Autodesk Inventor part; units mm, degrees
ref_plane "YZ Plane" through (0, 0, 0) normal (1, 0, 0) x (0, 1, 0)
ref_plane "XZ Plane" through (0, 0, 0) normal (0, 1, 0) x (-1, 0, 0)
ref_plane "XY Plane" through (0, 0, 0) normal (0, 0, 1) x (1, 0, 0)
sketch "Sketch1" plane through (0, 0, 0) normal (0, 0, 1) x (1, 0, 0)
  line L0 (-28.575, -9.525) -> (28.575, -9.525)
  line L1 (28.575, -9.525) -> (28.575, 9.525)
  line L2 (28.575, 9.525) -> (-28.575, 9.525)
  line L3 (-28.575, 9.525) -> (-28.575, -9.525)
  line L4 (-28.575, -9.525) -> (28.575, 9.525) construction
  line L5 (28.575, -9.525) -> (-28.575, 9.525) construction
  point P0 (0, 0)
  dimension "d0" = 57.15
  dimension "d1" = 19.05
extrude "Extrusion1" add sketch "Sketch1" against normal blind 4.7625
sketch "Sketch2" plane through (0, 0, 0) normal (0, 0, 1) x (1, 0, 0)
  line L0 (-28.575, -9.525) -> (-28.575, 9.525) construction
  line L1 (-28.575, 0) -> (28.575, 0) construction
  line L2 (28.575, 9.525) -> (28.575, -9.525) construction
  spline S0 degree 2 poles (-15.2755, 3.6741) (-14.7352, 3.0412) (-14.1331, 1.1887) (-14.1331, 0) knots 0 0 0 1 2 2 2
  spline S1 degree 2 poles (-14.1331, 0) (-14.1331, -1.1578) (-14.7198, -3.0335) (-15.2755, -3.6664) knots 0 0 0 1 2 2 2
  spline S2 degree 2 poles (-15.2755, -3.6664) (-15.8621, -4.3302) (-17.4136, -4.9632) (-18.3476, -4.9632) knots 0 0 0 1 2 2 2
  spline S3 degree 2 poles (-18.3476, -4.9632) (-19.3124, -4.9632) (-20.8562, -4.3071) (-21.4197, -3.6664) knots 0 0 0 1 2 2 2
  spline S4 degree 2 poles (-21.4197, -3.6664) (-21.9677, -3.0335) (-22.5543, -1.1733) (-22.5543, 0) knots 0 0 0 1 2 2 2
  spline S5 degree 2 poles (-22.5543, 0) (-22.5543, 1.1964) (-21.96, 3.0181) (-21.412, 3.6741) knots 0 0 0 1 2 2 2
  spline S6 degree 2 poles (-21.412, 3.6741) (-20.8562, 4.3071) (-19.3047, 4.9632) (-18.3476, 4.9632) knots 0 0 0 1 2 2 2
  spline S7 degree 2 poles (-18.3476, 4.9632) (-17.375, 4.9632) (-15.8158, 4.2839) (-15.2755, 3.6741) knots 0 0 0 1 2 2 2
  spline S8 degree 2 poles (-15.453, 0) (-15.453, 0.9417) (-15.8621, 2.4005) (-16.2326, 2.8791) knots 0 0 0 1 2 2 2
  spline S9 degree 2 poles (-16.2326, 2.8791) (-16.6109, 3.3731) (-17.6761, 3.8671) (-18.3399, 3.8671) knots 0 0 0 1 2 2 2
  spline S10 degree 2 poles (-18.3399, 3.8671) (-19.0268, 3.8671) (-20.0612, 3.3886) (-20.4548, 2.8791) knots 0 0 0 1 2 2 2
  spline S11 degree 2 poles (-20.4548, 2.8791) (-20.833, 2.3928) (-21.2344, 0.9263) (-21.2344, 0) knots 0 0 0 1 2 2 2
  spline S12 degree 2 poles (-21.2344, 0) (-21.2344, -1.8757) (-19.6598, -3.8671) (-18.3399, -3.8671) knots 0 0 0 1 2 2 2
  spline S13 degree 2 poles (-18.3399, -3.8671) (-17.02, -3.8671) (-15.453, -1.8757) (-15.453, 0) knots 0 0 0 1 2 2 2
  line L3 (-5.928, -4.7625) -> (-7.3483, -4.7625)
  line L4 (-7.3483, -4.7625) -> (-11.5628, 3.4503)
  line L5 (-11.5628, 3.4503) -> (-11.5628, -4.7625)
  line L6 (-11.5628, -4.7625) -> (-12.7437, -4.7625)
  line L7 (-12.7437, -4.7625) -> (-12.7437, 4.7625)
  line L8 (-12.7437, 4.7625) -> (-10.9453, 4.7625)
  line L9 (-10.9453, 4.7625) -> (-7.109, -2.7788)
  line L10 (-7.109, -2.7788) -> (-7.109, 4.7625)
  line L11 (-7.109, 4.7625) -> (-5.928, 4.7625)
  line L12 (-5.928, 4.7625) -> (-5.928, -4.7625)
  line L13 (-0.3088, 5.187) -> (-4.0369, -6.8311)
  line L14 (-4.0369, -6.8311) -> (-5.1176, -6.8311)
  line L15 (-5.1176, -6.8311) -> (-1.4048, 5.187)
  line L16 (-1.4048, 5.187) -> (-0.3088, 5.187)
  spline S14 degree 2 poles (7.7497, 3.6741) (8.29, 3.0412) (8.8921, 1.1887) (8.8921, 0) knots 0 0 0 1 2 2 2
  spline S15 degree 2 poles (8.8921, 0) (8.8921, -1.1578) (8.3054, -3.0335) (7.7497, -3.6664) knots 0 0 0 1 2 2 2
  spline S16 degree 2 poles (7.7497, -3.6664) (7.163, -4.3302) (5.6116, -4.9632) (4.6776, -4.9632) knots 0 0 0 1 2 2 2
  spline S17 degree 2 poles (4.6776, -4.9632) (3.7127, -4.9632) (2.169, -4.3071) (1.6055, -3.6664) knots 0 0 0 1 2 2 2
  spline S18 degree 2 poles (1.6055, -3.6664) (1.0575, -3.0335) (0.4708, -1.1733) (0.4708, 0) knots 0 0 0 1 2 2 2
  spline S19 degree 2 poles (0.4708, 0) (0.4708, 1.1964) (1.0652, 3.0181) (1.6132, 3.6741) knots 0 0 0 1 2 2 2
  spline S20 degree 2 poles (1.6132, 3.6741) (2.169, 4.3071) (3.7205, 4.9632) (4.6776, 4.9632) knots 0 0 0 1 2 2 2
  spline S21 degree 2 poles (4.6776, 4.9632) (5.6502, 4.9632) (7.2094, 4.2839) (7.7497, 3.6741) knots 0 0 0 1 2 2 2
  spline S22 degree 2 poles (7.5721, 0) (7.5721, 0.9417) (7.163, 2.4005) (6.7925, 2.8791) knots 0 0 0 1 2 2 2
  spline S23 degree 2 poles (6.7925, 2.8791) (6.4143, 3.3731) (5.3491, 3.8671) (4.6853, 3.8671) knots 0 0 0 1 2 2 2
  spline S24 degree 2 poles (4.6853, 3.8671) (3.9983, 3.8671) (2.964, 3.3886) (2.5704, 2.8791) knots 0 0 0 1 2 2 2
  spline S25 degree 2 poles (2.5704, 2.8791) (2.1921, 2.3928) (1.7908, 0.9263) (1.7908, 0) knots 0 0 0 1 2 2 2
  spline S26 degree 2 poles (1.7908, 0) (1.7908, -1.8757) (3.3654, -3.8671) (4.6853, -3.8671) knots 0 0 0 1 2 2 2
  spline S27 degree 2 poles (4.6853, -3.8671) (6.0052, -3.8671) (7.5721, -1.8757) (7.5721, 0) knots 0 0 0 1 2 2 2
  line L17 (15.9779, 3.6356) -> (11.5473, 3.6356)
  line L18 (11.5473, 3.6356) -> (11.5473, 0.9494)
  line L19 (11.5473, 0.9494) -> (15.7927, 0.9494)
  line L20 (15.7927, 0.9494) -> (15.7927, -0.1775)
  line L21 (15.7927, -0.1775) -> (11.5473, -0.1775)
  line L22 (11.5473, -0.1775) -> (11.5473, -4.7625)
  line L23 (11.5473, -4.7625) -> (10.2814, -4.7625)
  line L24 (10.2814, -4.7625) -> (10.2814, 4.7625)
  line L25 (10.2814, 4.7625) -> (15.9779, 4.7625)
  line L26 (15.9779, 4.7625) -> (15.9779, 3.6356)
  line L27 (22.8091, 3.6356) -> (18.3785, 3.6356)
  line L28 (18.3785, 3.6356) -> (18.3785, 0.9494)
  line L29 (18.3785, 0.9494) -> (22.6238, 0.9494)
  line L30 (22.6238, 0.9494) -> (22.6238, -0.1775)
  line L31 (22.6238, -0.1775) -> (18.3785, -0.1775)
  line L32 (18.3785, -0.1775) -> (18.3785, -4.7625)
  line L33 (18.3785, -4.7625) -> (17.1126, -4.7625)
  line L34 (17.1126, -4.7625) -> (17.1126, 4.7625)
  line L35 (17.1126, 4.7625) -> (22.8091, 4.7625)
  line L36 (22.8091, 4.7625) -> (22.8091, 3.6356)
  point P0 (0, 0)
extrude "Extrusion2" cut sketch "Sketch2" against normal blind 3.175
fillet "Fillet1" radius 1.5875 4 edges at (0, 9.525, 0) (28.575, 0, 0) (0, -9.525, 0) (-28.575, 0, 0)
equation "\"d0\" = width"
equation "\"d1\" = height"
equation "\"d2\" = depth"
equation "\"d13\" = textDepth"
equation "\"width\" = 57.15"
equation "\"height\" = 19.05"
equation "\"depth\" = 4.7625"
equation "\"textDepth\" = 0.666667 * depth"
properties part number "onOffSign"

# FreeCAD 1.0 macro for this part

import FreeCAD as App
import Part
import Sketcher
Q = App.Units.Quantity


def edges_at(feature, points):
    """Names of the edges that pass closest to the given points."""
    edges = feature.Shape.Edges
    near = lambda p: min(range(len(edges)), key=lambda i: edges[i].distToShape(Part.Vertex(*p))[0])
    return sorted({f"Edge{near(p) + 1}" for p in points})

doc = App.newDocument("Part")
body = doc.addObject("PartDesign::Body", "Body")

# Sketch on XY plane
sketch1 = body.newObject("Sketcher::SketchObject", "Sketch")
sketch1.AttachmentSupport = (doc.getObject("XY_Plane"), [""])
sketch1.MapMode = "FlatFace"
sketch1.addGeometry(Part.LineSegment(App.Vector(-29, 10, 0), App.Vector(-29, -10, 0)), False)
sketch1.addGeometry(Part.LineSegment(App.Vector(-29, -10, 0), App.Vector(29, -10, 0)), False)
sketch1.addGeometry(Part.LineSegment(App.Vector(29, -10, 0), App.Vector(29, 10, 0)), False)
sketch1.addGeometry(Part.LineSegment(App.Vector(29, 10, 0), App.Vector(-29, 10, 0)), False)
sketch1.addConstraint(Sketcher.Constraint("Coincident", 0, 2, 1, 1))
sketch1.addConstraint(Sketcher.Constraint("Coincident", 1, 2, 2, 1))
sketch1.addConstraint(Sketcher.Constraint("Coincident", 2, 2, 3, 1))
sketch1.addConstraint(Sketcher.Constraint("Coincident", 3, 2, 0, 1))
sketch1.addConstraint(Sketcher.Constraint("Vertical", 0))
sketch1.addConstraint(Sketcher.Constraint("Horizontal", 1))
sketch1.addConstraint(Sketcher.Constraint("Vertical", 2))
sketch1.addConstraint(Sketcher.Constraint("Horizontal", 3))
sketch1.addConstraint(Sketcher.Constraint("Symmetric", 0, 2, 2, 2, -1, 1))
sketch1.addConstraint(Sketcher.Constraint("DistanceX", 1, 1, 1, 2, Q("2.25 in")))
sketch1.addConstraint(Sketcher.Constraint("DistanceY", 0, 2, 0, 1, Q("0.75 in")))
pad1 = body.newObject("PartDesign::Pad", "Pad")
pad1.Profile = sketch1
pad1.Length = Q("0.1875 in")
pad1.Reversed = True

# Sketch on XY plane
sketch2 = body.newObject("Sketcher::SketchObject", "Sketch001")
sketch2.AttachmentSupport = (doc.getObject("XY_Plane"), [""])
sketch2.MapMode = "FlatFace"
sketch2.addGeometry(Part.BSplineCurve([App.Vector(-15.2755, 3.6741, 0), App.Vector(-14.7352, 3.0412, 0), App.Vector(-14.1331, 1.1887, 0), App.Vector(-14.1331, 0, 0)], [3, 1, 3], [0, 1, 2], False, 2, [1, 1, 1, 1], False), False)
sketch2.addGeometry(Part.BSplineCurve([App.Vector(-18.3476, 4.9632, 0), App.Vector(-17.375, 4.9632, 0), App.Vector(-15.8158, 4.2839, 0), App.Vector(-15.2755, 3.6741, 0)], [3, 1, 3], [0, 1, 2], False, 2, [1, 1, 1, 1], False), False)
sketch2.addGeometry(Part.BSplineCurve([App.Vector(-21.412, 3.6741, 0), App.Vector(-20.8562, 4.3071, 0), App.Vector(-19.3047, 4.9632, 0), App.Vector(-18.3476, 4.9632, 0)], [3, 1, 3], [0, 1, 2], False, 2, [1, 1, 1, 1], False), False)
sketch2.addGeometry(Part.BSplineCurve([App.Vector(-22.5543, 0, 0), App.Vector(-22.5543, 1.1964, 0), App.Vector(-21.96, 3.0181, 0), App.Vector(-21.412, 3.6741, 0)], [3, 1, 3], [0, 1, 2], False, 2, [1, 1, 1, 1], False), False)
sketch2.addGeometry(Part.BSplineCurve([App.Vector(-21.4197, -3.6664, 0), App.Vector(-21.9677, -3.0335, 0), App.Vector(-22.5543, -1.1733, 0), App.Vector(-22.5543, 0, 0)], [3, 1, 3], [0, 1, 2], False, 2, [1, 1, 1, 1], False), False)
sketch2.addGeometry(Part.BSplineCurve([App.Vector(-18.3476, -4.9632, 0), App.Vector(-19.3124, -4.9632, 0), App.Vector(-20.8562, -4.3071, 0), App.Vector(-21.4197, -3.6664, 0)], [3, 1, 3], [0, 1, 2], False, 2, [1, 1, 1, 1], False), False)
sketch2.addGeometry(Part.BSplineCurve([App.Vector(-15.2755, -3.6664, 0), App.Vector(-15.8621, -4.3302, 0), App.Vector(-17.4136, -4.9632, 0), App.Vector(-18.3476, -4.9632, 0)], [3, 1, 3], [0, 1, 2], False, 2, [1, 1, 1, 1], False), False)
sketch2.addGeometry(Part.BSplineCurve([App.Vector(-14.1331, 0, 0), App.Vector(-14.1331, -1.1578, 0), App.Vector(-14.7198, -3.0335, 0), App.Vector(-15.2755, -3.6664, 0)], [3, 1, 3], [0, 1, 2], False, 2, [1, 1, 1, 1], False), False)
sketch2.addGeometry(Part.BSplineCurve([App.Vector(-15.453, 0, 0), App.Vector(-15.453, 0.9417, 0), App.Vector(-15.8621, 2.4005, 0), App.Vector(-16.2326, 2.8791, 0)], [3, 1, 3], [0, 1, 2], False, 2, [1, 1, 1, 1], False), False)
sketch2.addGeometry(Part.BSplineCurve([App.Vector(-18.3399, -3.8671, 0), App.Vector(-17.02, -3.8671, 0), App.Vector(-15.453, -1.8757, 0), App.Vector(-15.453, 0, 0)], [3, 1, 3], [0, 1, 2], False, 2, [1, 1, 1, 1], False), False)
sketch2.addGeometry(Part.BSplineCurve([App.Vector(-21.2344, 0, 0), App.Vector(-21.2344, -1.8757, 0), App.Vector(-19.6598, -3.8671, 0), App.Vector(-18.3399, -3.8671, 0)], [3, 1, 3], [0, 1, 2], False, 2, [1, 1, 1, 1], False), False)
sketch2.addGeometry(Part.BSplineCurve([App.Vector(-20.4548, 2.8791, 0), App.Vector(-20.833, 2.3928, 0), App.Vector(-21.2344, 0.9263, 0), App.Vector(-21.2344, 0, 0)], [3, 1, 3], [0, 1, 2], False, 2, [1, 1, 1, 1], False), False)
sketch2.addGeometry(Part.BSplineCurve([App.Vector(-18.3399, 3.8671, 0), App.Vector(-19.0268, 3.8671, 0), App.Vector(-20.0612, 3.3886, 0), App.Vector(-20.4548, 2.8791, 0)], [3, 1, 3], [0, 1, 2], False, 2, [1, 1, 1, 1], False), False)
sketch2.addGeometry(Part.BSplineCurve([App.Vector(-16.2326, 2.8791, 0), App.Vector(-16.6109, 3.3731, 0), App.Vector(-17.6761, 3.8671, 0), App.Vector(-18.3399, 3.8671, 0)], [3, 1, 3], [0, 1, 2], False, 2, [1, 1, 1, 1], False), False)
sketch2.addGeometry(Part.LineSegment(App.Vector(-7.3483, -4.7625, 0), App.Vector(-5.928, -4.7625, 0)), False)
sketch2.addGeometry(Part.LineSegment(App.Vector(-5.928, -4.7625, 0), App.Vector(-5.928, 4.7625, 0)), False)
sketch2.addGeometry(Part.LineSegment(App.Vector(-5.928, 4.7625, 0), App.Vector(-7.109, 4.7625, 0)), False)
sketch2.addGeometry(Part.LineSegment(App.Vector(-7.109, 4.7625, 0), App.Vector(-7.109, -2.7788, 0)), False)
sketch2.addGeometry(Part.LineSegment(App.Vector(-7.109, -2.7788, 0), App.Vector(-10.9453, 4.7625, 0)), False)
sketch2.addGeometry(Part.LineSegment(App.Vector(-10.9453, 4.7625, 0), App.Vector(-12.7437, 4.7625, 0)), False)
sketch2.addGeometry(Part.LineSegment(App.Vector(-12.7437, 4.7625, 0), App.Vector(-12.7437, -4.7625, 0)), False)
sketch2.addGeometry(Part.LineSegment(App.Vector(-12.7437, -4.7625, 0), App.Vector(-11.5628, -4.7625, 0)), False)
sketch2.addGeometry(Part.LineSegment(App.Vector(-11.5628, -4.7625, 0), App.Vector(-11.5628, 3.4503, 0)), False)
sketch2.addGeometry(Part.LineSegment(App.Vector(-11.5628, 3.4503, 0), App.Vector(-7.3483, -4.7625, 0)), False)
sketch2.addGeometry(Part.LineSegment(App.Vector(-4.0369, -6.8311, 0), App.Vector(-0.3088, 5.187, 0)), False)
sketch2.addGeometry(Part.LineSegment(App.Vector(-0.3088, 5.187, 0), App.Vector(-1.4048, 5.187, 0)), False)
sketch2.addGeometry(Part.LineSegment(App.Vector(-1.4048, 5.187, 0), App.Vector(-5.1176, -6.8311, 0)), False)
sketch2.addGeometry(Part.LineSegment(App.Vector(-5.1176, -6.8311, 0), App.Vector(-4.0369, -6.8311, 0)), False)
sketch2.addGeometry(Part.BSplineCurve([App.Vector(7.7497, 3.6741, 0), App.Vector(8.29, 3.0412, 0), App.Vector(8.8921, 1.1887, 0), App.Vector(8.8921, 0, 0)], [3, 1, 3], [0, 1, 2], False, 2, [1, 1, 1, 1], False), False)
sketch2.addGeometry(Part.BSplineCurve([App.Vector(4.6776, 4.9632, 0), App.Vector(5.6502, 4.9632, 0), App.Vector(7.2094, 4.2839, 0), App.Vector(7.7497, 3.6741, 0)], [3, 1, 3], [0, 1, 2], False, 2, [1, 1, 1, 1], False), False)
sketch2.addGeometry(Part.BSplineCurve([App.Vector(1.6132, 3.6741, 0), App.Vector(2.169, 4.3071, 0), App.Vector(3.7205, 4.9632, 0), App.Vector(4.6776, 4.9632, 0)], [3, 1, 3], [0, 1, 2], False, 2, [1, 1, 1, 1], False), False)
sketch2.addGeometry(Part.BSplineCurve([App.Vector(0.4708, 0, 0), App.Vector(0.4708, 1.1964, 0), App.Vector(1.0652, 3.0181, 0), App.Vector(1.6132, 3.6741, 0)], [3, 1, 3], [0, 1, 2], False, 2, [1, 1, 1, 1], False), False)
sketch2.addGeometry(Part.BSplineCurve([App.Vector(1.6055, -3.6664, 0), App.Vector(1.0575, -3.0335, 0), App.Vector(0.4708, -1.1733, 0), App.Vector(0.4708, 0, 0)], [3, 1, 3], [0, 1, 2], False, 2, [1, 1, 1, 1], False), False)
sketch2.addGeometry(Part.BSplineCurve([App.Vector(4.6776, -4.9632, 0), App.Vector(3.7127, -4.9632, 0), App.Vector(2.169, -4.3071, 0), App.Vector(1.6055, -3.6664, 0)], [3, 1, 3], [0, 1, 2], False, 2, [1, 1, 1, 1], False), False)
sketch2.addGeometry(Part.BSplineCurve([App.Vector(7.7497, -3.6664, 0), App.Vector(7.163, -4.3302, 0), App.Vector(5.6116, -4.9632, 0), App.Vector(4.6776, -4.9632, 0)], [3, 1, 3], [0, 1, 2], False, 2, [1, 1, 1, 1], False), False)
sketch2.addGeometry(Part.BSplineCurve([App.Vector(8.8921, 0, 0), App.Vector(8.8921, -1.1578, 0), App.Vector(8.3054, -3.0335, 0), App.Vector(7.7497, -3.6664, 0)], [3, 1, 3], [0, 1, 2], False, 2, [1, 1, 1, 1], False), False)
sketch2.addGeometry(Part.BSplineCurve([App.Vector(7.5721, 0, 0), App.Vector(7.5721, 0.9417, 0), App.Vector(7.163, 2.4005, 0), App.Vector(6.7925, 2.8791, 0)], [3, 1, 3], [0, 1, 2], False, 2, [1, 1, 1, 1], False), False)
sketch2.addGeometry(Part.BSplineCurve([App.Vector(4.6853, -3.8671, 0), App.Vector(6.0052, -3.8671, 0), App.Vector(7.5721, -1.8757, 0), App.Vector(7.5721, 0, 0)], [3, 1, 3], [0, 1, 2], False, 2, [1, 1, 1, 1], False), False)
sketch2.addGeometry(Part.BSplineCurve([App.Vector(1.7908, 0, 0), App.Vector(1.7908, -1.8757, 0), App.Vector(3.3654, -3.8671, 0), App.Vector(4.6853, -3.8671, 0)], [3, 1, 3], [0, 1, 2], False, 2, [1, 1, 1, 1], False), False)
sketch2.addGeometry(Part.BSplineCurve([App.Vector(2.5704, 2.8791, 0), App.Vector(2.1921, 2.3928, 0), App.Vector(1.7908, 0.9263, 0), App.Vector(1.7908, 0, 0)], [3, 1, 3], [0, 1, 2], False, 2, [1, 1, 1, 1], False), False)
sketch2.addGeometry(Part.BSplineCurve([App.Vector(4.6853, 3.8671, 0), App.Vector(3.9983, 3.8671, 0), App.Vector(2.964, 3.3886, 0), App.Vector(2.5704, 2.8791, 0)], [3, 1, 3], [0, 1, 2], False, 2, [1, 1, 1, 1], False), False)
sketch2.addGeometry(Part.BSplineCurve([App.Vector(6.7925, 2.8791, 0), App.Vector(6.4143, 3.3731, 0), App.Vector(5.3491, 3.8671, 0), App.Vector(4.6853, 3.8671, 0)], [3, 1, 3], [0, 1, 2], False, 2, [1, 1, 1, 1], False), False)
sketch2.addGeometry(Part.LineSegment(App.Vector(11.5473, 3.6356, 0), App.Vector(15.9779, 3.6356, 0)), False)
sketch2.addGeometry(Part.LineSegment(App.Vector(15.9779, 3.6356, 0), App.Vector(15.9779, 4.7625, 0)), False)
sketch2.addGeometry(Part.LineSegment(App.Vector(15.9779, 4.7625, 0), App.Vector(10.2814, 4.7625, 0)), False)
sketch2.addGeometry(Part.LineSegment(App.Vector(10.2814, 4.7625, 0), App.Vector(10.2814, -4.7625, 0)), False)
sketch2.addGeometry(Part.LineSegment(App.Vector(10.2814, -4.7625, 0), App.Vector(11.5473, -4.7625, 0)), False)
sketch2.addGeometry(Part.LineSegment(App.Vector(11.5473, -4.7625, 0), App.Vector(11.5473, -0.1775, 0)), False)
sketch2.addGeometry(Part.LineSegment(App.Vector(11.5473, -0.1775, 0), App.Vector(15.7927, -0.1775, 0)), False)
sketch2.addGeometry(Part.LineSegment(App.Vector(15.7927, -0.1775, 0), App.Vector(15.7927, 0.9494, 0)), False)
sketch2.addGeometry(Part.LineSegment(App.Vector(15.7927, 0.9494, 0), App.Vector(11.5473, 0.9494, 0)), False)
sketch2.addGeometry(Part.LineSegment(App.Vector(11.5473, 0.9494, 0), App.Vector(11.5473, 3.6356, 0)), False)
sketch2.addGeometry(Part.LineSegment(App.Vector(18.3785, 3.6356, 0), App.Vector(22.8091, 3.6356, 0)), False)
sketch2.addGeometry(Part.LineSegment(App.Vector(22.8091, 3.6356, 0), App.Vector(22.8091, 4.7625, 0)), False)
sketch2.addGeometry(Part.LineSegment(App.Vector(22.8091, 4.7625, 0), App.Vector(17.1126, 4.7625, 0)), False)
sketch2.addGeometry(Part.LineSegment(App.Vector(17.1126, 4.7625, 0), App.Vector(17.1126, -4.7625, 0)), False)
sketch2.addGeometry(Part.LineSegment(App.Vector(17.1126, -4.7625, 0), App.Vector(18.3785, -4.7625, 0)), False)
sketch2.addGeometry(Part.LineSegment(App.Vector(18.3785, -4.7625, 0), App.Vector(18.3785, -0.1775, 0)), False)
sketch2.addGeometry(Part.LineSegment(App.Vector(18.3785, -0.1775, 0), App.Vector(22.6238, -0.1775, 0)), False)
sketch2.addGeometry(Part.LineSegment(App.Vector(22.6238, -0.1775, 0), App.Vector(22.6238, 0.9494, 0)), False)
sketch2.addGeometry(Part.LineSegment(App.Vector(22.6238, 0.9494, 0), App.Vector(18.3785, 0.9494, 0)), False)
sketch2.addGeometry(Part.LineSegment(App.Vector(18.3785, 0.9494, 0), App.Vector(18.3785, 3.6356, 0)), False)
sketch2.addConstraint(Sketcher.Constraint("Block", 0))
sketch2.addConstraint(Sketcher.Constraint("Block", 1))
sketch2.addConstraint(Sketcher.Constraint("Block", 2))
sketch2.addConstraint(Sketcher.Constraint("Block", 3))
sketch2.addConstraint(Sketcher.Constraint("Block", 4))
sketch2.addConstraint(Sketcher.Constraint("Block", 5))
sketch2.addConstraint(Sketcher.Constraint("Block", 6))
sketch2.addConstraint(Sketcher.Constraint("Block", 7))
sketch2.addConstraint(Sketcher.Constraint("Block", 8))
sketch2.addConstraint(Sketcher.Constraint("Block", 9))
sketch2.addConstraint(Sketcher.Constraint("Block", 10))
sketch2.addConstraint(Sketcher.Constraint("Block", 11))
sketch2.addConstraint(Sketcher.Constraint("Block", 12))
sketch2.addConstraint(Sketcher.Constraint("Block", 13))
sketch2.addConstraint(Sketcher.Constraint("Block", 28))
sketch2.addConstraint(Sketcher.Constraint("Block", 29))
sketch2.addConstraint(Sketcher.Constraint("Block", 30))
sketch2.addConstraint(Sketcher.Constraint("Block", 31))
sketch2.addConstraint(Sketcher.Constraint("Block", 32))
sketch2.addConstraint(Sketcher.Constraint("Block", 33))
sketch2.addConstraint(Sketcher.Constraint("Block", 34))
sketch2.addConstraint(Sketcher.Constraint("Block", 35))
sketch2.addConstraint(Sketcher.Constraint("Block", 36))
sketch2.addConstraint(Sketcher.Constraint("Block", 37))
sketch2.addConstraint(Sketcher.Constraint("Block", 38))
sketch2.addConstraint(Sketcher.Constraint("Block", 39))
sketch2.addConstraint(Sketcher.Constraint("Block", 40))
sketch2.addConstraint(Sketcher.Constraint("Block", 41))
sketch2.addConstraint(Sketcher.Constraint("Coincident", 14, 2, 15, 1))
sketch2.addConstraint(Sketcher.Constraint("Coincident", 15, 2, 16, 1))
sketch2.addConstraint(Sketcher.Constraint("Coincident", 16, 2, 17, 1))
sketch2.addConstraint(Sketcher.Constraint("Coincident", 17, 2, 18, 1))
sketch2.addConstraint(Sketcher.Constraint("Coincident", 18, 2, 19, 1))
sketch2.addConstraint(Sketcher.Constraint("Coincident", 19, 2, 20, 1))
sketch2.addConstraint(Sketcher.Constraint("Coincident", 20, 2, 21, 1))
sketch2.addConstraint(Sketcher.Constraint("Coincident", 21, 2, 22, 1))
sketch2.addConstraint(Sketcher.Constraint("Coincident", 22, 2, 23, 1))
sketch2.addConstraint(Sketcher.Constraint("Coincident", 23, 2, 14, 1))
sketch2.addConstraint(Sketcher.Constraint("Coincident", 24, 2, 25, 1))
sketch2.addConstraint(Sketcher.Constraint("Coincident", 25, 2, 26, 1))
sketch2.addConstraint(Sketcher.Constraint("Coincident", 26, 2, 27, 1))
sketch2.addConstraint(Sketcher.Constraint("Coincident", 27, 2, 24, 1))
sketch2.addConstraint(Sketcher.Constraint("Coincident", 42, 2, 43, 1))
sketch2.addConstraint(Sketcher.Constraint("Coincident", 43, 2, 44, 1))
sketch2.addConstraint(Sketcher.Constraint("Coincident", 44, 2, 45, 1))
sketch2.addConstraint(Sketcher.Constraint("Coincident", 45, 2, 46, 1))
sketch2.addConstraint(Sketcher.Constraint("Coincident", 46, 2, 47, 1))
sketch2.addConstraint(Sketcher.Constraint("Coincident", 47, 2, 48, 1))
sketch2.addConstraint(Sketcher.Constraint("Coincident", 48, 2, 49, 1))
sketch2.addConstraint(Sketcher.Constraint("Coincident", 49, 2, 50, 1))
sketch2.addConstraint(Sketcher.Constraint("Coincident", 50, 2, 51, 1))
sketch2.addConstraint(Sketcher.Constraint("Coincident", 51, 2, 42, 1))
sketch2.addConstraint(Sketcher.Constraint("Coincident", 52, 2, 53, 1))
sketch2.addConstraint(Sketcher.Constraint("Coincident", 53, 2, 54, 1))
sketch2.addConstraint(Sketcher.Constraint("Coincident", 54, 2, 55, 1))
sketch2.addConstraint(Sketcher.Constraint("Coincident", 55, 2, 56, 1))
sketch2.addConstraint(Sketcher.Constraint("Coincident", 56, 2, 57, 1))
sketch2.addConstraint(Sketcher.Constraint("Coincident", 57, 2, 58, 1))
sketch2.addConstraint(Sketcher.Constraint("Coincident", 58, 2, 59, 1))
sketch2.addConstraint(Sketcher.Constraint("Coincident", 59, 2, 60, 1))
sketch2.addConstraint(Sketcher.Constraint("Coincident", 60, 2, 61, 1))
sketch2.addConstraint(Sketcher.Constraint("Coincident", 61, 2, 52, 1))
sketch2.addConstraint(Sketcher.Constraint("Horizontal", 14))
sketch2.addConstraint(Sketcher.Constraint("Vertical", 15))
sketch2.addConstraint(Sketcher.Constraint("Horizontal", 16))
sketch2.addConstraint(Sketcher.Constraint("Vertical", 17))
sketch2.addConstraint(Sketcher.Constraint("Horizontal", 19))
sketch2.addConstraint(Sketcher.Constraint("Vertical", 20))
sketch2.addConstraint(Sketcher.Constraint("Horizontal", 21))
sketch2.addConstraint(Sketcher.Constraint("Vertical", 22))
sketch2.addConstraint(Sketcher.Constraint("Horizontal", 25))
sketch2.addConstraint(Sketcher.Constraint("Horizontal", 27))
sketch2.addConstraint(Sketcher.Constraint("Horizontal", 42))
sketch2.addConstraint(Sketcher.Constraint("Vertical", 43))
sketch2.addConstraint(Sketcher.Constraint("Horizontal", 44))
sketch2.addConstraint(Sketcher.Constraint("Vertical", 45))
sketch2.addConstraint(Sketcher.Constraint("Horizontal", 46))
sketch2.addConstraint(Sketcher.Constraint("Vertical", 47))
sketch2.addConstraint(Sketcher.Constraint("Horizontal", 48))
sketch2.addConstraint(Sketcher.Constraint("Vertical", 49))
sketch2.addConstraint(Sketcher.Constraint("Horizontal", 50))
sketch2.addConstraint(Sketcher.Constraint("Vertical", 51))
sketch2.addConstraint(Sketcher.Constraint("Horizontal", 52))
sketch2.addConstraint(Sketcher.Constraint("Vertical", 53))
sketch2.addConstraint(Sketcher.Constraint("Horizontal", 54))
sketch2.addConstraint(Sketcher.Constraint("Vertical", 55))
sketch2.addConstraint(Sketcher.Constraint("Horizontal", 56))
sketch2.addConstraint(Sketcher.Constraint("Vertical", 57))
sketch2.addConstraint(Sketcher.Constraint("Horizontal", 58))
sketch2.addConstraint(Sketcher.Constraint("Vertical", 59))
sketch2.addConstraint(Sketcher.Constraint("Horizontal", 60))
sketch2.addConstraint(Sketcher.Constraint("Vertical", 61))
sketch2.addConstraint(Sketcher.Constraint("Horizontal", 16, 2, 18, 2))
sketch2.addConstraint(Sketcher.Constraint("Horizontal", 14, 2, 20, 2))
sketch2.addConstraint(Sketcher.Constraint("Horizontal", 19, 2, 43, 2))
sketch2.addConstraint(Sketcher.Constraint("Horizontal", 23, 2, 45, 2))
sketch2.addConstraint(Sketcher.Constraint("Horizontal", 51, 2, 52, 2))
sketch2.addConstraint(Sketcher.Constraint("Horizontal", 44, 2, 53, 2))
sketch2.addConstraint(Sketcher.Constraint("Horizontal", 46, 2, 55, 2))
sketch2.addConstraint(Sketcher.Constraint("Horizontal", 48, 2, 57, 2))
sketch2.addConstraint(Sketcher.Constraint("Horizontal", 50, 2, 59, 2))
sketch2.addConstraint(Sketcher.Constraint("Vertical", 47, 2, 50, 2))
sketch2.addConstraint(Sketcher.Constraint("Vertical", 57, 2, 60, 2))
sketch2.addConstraint(Sketcher.Constraint("Equal", 16, 21))
sketch2.addConstraint(Sketcher.Constraint("Equal", 42, 52))
sketch2.addConstraint(Sketcher.Constraint("Equal", 44, 54))
sketch2.addConstraint(Sketcher.Constraint("Equal", 50, 58))
sketch2.addConstraint(Sketcher.Constraint("Equal", 43, 49))
sketch2.addConstraint(Sketcher.Constraint("DistanceY", 15, 1, 15, 2, Q("0.375 in")))
sketch2.addConstraint(Sketcher.Constraint("DistanceX", 16, 2, 16, 1, Q("0.0465 in")))
sketch2.addConstraint(Sketcher.Constraint("DistanceX", 19, 2, 19, 1, Q("0.0708 in")))
sketch2.addConstraint(Sketcher.Constraint("DistanceY", 17, 2, 17, 1, Q("0.2969 in")))
sketch2.addConstraint(Sketcher.Constraint("DistanceY", 47, 1, 47, 2, Q("0.1805 in")))
sketch2.addConstraint(Sketcher.Constraint("DistanceY", 14, 2, -1, 1, Q("0.1875 in")))
sketch2.addConstraint(Sketcher.Constraint("DistanceX", -1, 1, 52, 2, Q("0.898 in")))
sketch2.addConstraint(Sketcher.Constraint("Distance", 18, Q("0.3331 in")))
sketch2.addConstraint(Sketcher.Constraint("Distance", 24, Q("0.4954 in")))
sketch2.addConstraint(Sketcher.Constraint("DistanceX", 14, 1, 14, 2, Q("1.4203 mm")))
sketch2.addConstraint(Sketcher.Constraint("DistanceX", 25, 2, 25, 1, Q("1.096 mm")))
sketch2.addConstraint(Sketcher.Constraint("DistanceX", 27, 1, 27, 2, Q("1.0807 mm")))
sketch2.addConstraint(Sketcher.Constraint("DistanceX", 42, 1, 42, 2, Q("4.4306 mm")))
sketch2.addConstraint(Sketcher.Constraint("DistanceX", 44, 2, 44, 1, Q("5.6965 mm")))
sketch2.addConstraint(Sketcher.Constraint("DistanceX", 48, 1, 48, 2, Q("4.2454 mm")))
sketch2.addConstraint(Sketcher.Constraint("DistanceY", 22, 1, 22, 2, Q("8.2128 mm")))
sketch2.addConstraint(Sketcher.Constraint("DistanceY", 43, 1, 43, 2, Q("1.127 mm")))
sketch2.addConstraint(Sketcher.Constraint("DistanceX", 23, 2, -1, 1, Q("0.2893 in")))
sketch2.addConstraint(Sketcher.Constraint("DistanceX", 25, 2, -1, 1, Q("0.0553 in")))
sketch2.addConstraint(Sketcher.Constraint("DistanceX", 14, 2, 26, 2, Q("0.0319 in")))
sketch2.addConstraint(Sketcher.Constraint("DistanceX", 24, 2, 42, 2, Q("0.6412 in")))
sketch2.addConstraint(Sketcher.Constraint("DistanceY", -1, 1, 24, 2, Q("5.187 mm")))
pocket1 = body.newObject("PartDesign::Pocket", "Pocket")
pocket1.Profile = sketch2
pocket1.Length = Q("0.125 in")
doc.recompute()

fillet = body.newObject("PartDesign::Fillet", "Fillet")
fillet.Base = (pocket1, edges_at(pocket1, [
    (0, 9.525, 0),
    (28.575, 0, 0),
    (0, -9.525, 0),
    (-28.575, 0, 0),
]))
fillet.Radius = Q("0.0625 in")

doc.recompute()
